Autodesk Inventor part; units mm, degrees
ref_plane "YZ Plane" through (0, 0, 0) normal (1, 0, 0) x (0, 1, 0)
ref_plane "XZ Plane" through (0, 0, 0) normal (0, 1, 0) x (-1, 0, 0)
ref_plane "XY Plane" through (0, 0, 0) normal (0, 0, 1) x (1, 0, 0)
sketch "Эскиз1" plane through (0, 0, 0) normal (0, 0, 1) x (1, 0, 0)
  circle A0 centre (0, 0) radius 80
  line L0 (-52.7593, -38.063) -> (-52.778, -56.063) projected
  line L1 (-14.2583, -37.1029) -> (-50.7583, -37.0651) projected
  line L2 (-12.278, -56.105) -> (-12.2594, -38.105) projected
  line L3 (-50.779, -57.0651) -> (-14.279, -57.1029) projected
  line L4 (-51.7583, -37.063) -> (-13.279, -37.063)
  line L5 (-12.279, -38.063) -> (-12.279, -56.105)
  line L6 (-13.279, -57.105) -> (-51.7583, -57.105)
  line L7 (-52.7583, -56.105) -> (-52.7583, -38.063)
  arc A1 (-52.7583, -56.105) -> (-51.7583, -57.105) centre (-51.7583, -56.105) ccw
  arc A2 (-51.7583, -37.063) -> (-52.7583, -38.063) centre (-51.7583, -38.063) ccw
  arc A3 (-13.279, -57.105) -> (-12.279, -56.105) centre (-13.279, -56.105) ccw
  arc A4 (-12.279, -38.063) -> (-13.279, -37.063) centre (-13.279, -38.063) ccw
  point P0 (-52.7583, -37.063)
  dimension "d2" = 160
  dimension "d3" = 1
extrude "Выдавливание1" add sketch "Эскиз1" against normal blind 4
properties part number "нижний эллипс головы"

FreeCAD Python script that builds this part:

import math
import FreeCAD as App
import Part
import Sketcher
Q = App.Units.Quantity

doc = App.newDocument("Part")
body = doc.addObject("PartDesign::Body", "Body")

# Sketch on XY plane
sketch1 = body.newObject("Sketcher::SketchObject", "Sketch")
sketch1.AttachmentSupport = (doc.getObject("XY_Plane"), [""])
sketch1.MapMode = "FlatFace"
sketch1.addGeometry(Part.Circle(App.Vector(0, 0, 0), App.Vector(0, 0, 1), 80), False)
sketch1.addGeometry(Part.ArcOfCircle(Part.Circle(App.Vector(-51.757592, -38.064709, 0), App.Vector(0, 0, 1), 1.001709), math.radians(90.040494), math.radians(179.902239)), False)
sketch1.addGeometry(Part.LineSegment(App.Vector(-51.7583, -37.063, 0), App.Vector(-13.279, -37.063, 0)), False)
sketch1.addGeometry(Part.ArcOfCircle(Part.Circle(App.Vector(-13.279, -38.063, 0), App.Vector(0, 0, 1), 1), math.radians(0), math.radians(90)), False)
sketch1.addGeometry(Part.LineSegment(App.Vector(-12.279, -38.063, 0), App.Vector(-12.278, -56.105, 0)), False)
sketch1.addGeometry(Part.ArcOfCircle(Part.Circle(App.Vector(-13.279708, -56.103291, 0), App.Vector(0, 0, 1), 1.001709), math.radians(-89.959506), math.radians(-0.097761)), False)
sketch1.addGeometry(Part.LineSegment(App.Vector(-13.279, -57.105, 0), App.Vector(-51.7583, -57.105, 0)), False)
sketch1.addGeometry(Part.ArcOfCircle(Part.Circle(App.Vector(-51.7583, -56.105, 0), App.Vector(0, 0, 1), 1), math.radians(180), math.radians(270)), False)
sketch1.addGeometry(Part.LineSegment(App.Vector(-52.7583, -56.105, 0), App.Vector(-52.7593, -38.063, 0)), False)
sketch1.addConstraint(Sketcher.Constraint("Coincident", 1, 1, 2, 1))
sketch1.addConstraint(Sketcher.Constraint("Tangent", 2, 2, 3, 2))
sketch1.addConstraint(Sketcher.Constraint("Tangent", 3, 1, 4, 1))
sketch1.addConstraint(Sketcher.Constraint("Coincident", 4, 2, 5, 2))
sketch1.addConstraint(Sketcher.Constraint("Coincident", 5, 1, 6, 1))
sketch1.addConstraint(Sketcher.Constraint("Tangent", 6, 2, 7, 2))
sketch1.addConstraint(Sketcher.Constraint("Tangent", 7, 1, 8, 1))
sketch1.addConstraint(Sketcher.Constraint("Coincident", 8, 2, 1, 2))
sketch1.addConstraint(Sketcher.Constraint("Horizontal", 2))
sketch1.addConstraint(Sketcher.Constraint("Horizontal", 6))
sketch1.addConstraint(Sketcher.Constraint("Coincident", 0, 3, -1, 1))
sketch1.addConstraint(Sketcher.Constraint("Equal", 1, 5))
sketch1.addConstraint(Sketcher.Constraint("Equal", 3, 7))
sketch1.addConstraint(Sketcher.Constraint("Parallel", 4, 8))
sketch1.addConstraint(Sketcher.Constraint("Horizontal", 7, 3, 4, 2))
sketch1.addConstraint(Sketcher.Constraint("Horizontal", 4, 2, 7, 1))
sketch1.addConstraint(Sketcher.Constraint("Horizontal", 3, 1, 8, 2))
sketch1.addConstraint(Sketcher.Constraint("Vertical", 7, 3, 1, 1))
sketch1.addConstraint(Sketcher.Constraint("Vertical", 2, 2, 5, 1))
sketch1.addConstraint(Sketcher.Constraint("Diameter", 0, Q("160 mm")))
sketch1.addConstraint(Sketcher.Constraint("Radius", 3, Q("1 mm")))
sketch1.addConstraint(Sketcher.Constraint("Radius", 1, Q("1.0017 mm")))
sketch1.addConstraint(Sketcher.Constraint("Distance", 4, Q("18.042 mm")))
sketch1.addConstraint(Sketcher.Constraint("DistanceX", 2, 1, 2, 2, Q("38.4793 mm")))
sketch1.addConstraint(Sketcher.Constraint("DistanceX", 3, 3, -1, 1, Q("13.279 mm")))
sketch1.addConstraint(Sketcher.Constraint("DistanceY", 3, 3, -1, 1, Q("38.063 mm")))
pad1 = body.newObject("PartDesign::Pad", "Pad")
pad1.Profile = sketch1
pad1.Length = 4
pad1.Reversed = True

doc.recompute()
